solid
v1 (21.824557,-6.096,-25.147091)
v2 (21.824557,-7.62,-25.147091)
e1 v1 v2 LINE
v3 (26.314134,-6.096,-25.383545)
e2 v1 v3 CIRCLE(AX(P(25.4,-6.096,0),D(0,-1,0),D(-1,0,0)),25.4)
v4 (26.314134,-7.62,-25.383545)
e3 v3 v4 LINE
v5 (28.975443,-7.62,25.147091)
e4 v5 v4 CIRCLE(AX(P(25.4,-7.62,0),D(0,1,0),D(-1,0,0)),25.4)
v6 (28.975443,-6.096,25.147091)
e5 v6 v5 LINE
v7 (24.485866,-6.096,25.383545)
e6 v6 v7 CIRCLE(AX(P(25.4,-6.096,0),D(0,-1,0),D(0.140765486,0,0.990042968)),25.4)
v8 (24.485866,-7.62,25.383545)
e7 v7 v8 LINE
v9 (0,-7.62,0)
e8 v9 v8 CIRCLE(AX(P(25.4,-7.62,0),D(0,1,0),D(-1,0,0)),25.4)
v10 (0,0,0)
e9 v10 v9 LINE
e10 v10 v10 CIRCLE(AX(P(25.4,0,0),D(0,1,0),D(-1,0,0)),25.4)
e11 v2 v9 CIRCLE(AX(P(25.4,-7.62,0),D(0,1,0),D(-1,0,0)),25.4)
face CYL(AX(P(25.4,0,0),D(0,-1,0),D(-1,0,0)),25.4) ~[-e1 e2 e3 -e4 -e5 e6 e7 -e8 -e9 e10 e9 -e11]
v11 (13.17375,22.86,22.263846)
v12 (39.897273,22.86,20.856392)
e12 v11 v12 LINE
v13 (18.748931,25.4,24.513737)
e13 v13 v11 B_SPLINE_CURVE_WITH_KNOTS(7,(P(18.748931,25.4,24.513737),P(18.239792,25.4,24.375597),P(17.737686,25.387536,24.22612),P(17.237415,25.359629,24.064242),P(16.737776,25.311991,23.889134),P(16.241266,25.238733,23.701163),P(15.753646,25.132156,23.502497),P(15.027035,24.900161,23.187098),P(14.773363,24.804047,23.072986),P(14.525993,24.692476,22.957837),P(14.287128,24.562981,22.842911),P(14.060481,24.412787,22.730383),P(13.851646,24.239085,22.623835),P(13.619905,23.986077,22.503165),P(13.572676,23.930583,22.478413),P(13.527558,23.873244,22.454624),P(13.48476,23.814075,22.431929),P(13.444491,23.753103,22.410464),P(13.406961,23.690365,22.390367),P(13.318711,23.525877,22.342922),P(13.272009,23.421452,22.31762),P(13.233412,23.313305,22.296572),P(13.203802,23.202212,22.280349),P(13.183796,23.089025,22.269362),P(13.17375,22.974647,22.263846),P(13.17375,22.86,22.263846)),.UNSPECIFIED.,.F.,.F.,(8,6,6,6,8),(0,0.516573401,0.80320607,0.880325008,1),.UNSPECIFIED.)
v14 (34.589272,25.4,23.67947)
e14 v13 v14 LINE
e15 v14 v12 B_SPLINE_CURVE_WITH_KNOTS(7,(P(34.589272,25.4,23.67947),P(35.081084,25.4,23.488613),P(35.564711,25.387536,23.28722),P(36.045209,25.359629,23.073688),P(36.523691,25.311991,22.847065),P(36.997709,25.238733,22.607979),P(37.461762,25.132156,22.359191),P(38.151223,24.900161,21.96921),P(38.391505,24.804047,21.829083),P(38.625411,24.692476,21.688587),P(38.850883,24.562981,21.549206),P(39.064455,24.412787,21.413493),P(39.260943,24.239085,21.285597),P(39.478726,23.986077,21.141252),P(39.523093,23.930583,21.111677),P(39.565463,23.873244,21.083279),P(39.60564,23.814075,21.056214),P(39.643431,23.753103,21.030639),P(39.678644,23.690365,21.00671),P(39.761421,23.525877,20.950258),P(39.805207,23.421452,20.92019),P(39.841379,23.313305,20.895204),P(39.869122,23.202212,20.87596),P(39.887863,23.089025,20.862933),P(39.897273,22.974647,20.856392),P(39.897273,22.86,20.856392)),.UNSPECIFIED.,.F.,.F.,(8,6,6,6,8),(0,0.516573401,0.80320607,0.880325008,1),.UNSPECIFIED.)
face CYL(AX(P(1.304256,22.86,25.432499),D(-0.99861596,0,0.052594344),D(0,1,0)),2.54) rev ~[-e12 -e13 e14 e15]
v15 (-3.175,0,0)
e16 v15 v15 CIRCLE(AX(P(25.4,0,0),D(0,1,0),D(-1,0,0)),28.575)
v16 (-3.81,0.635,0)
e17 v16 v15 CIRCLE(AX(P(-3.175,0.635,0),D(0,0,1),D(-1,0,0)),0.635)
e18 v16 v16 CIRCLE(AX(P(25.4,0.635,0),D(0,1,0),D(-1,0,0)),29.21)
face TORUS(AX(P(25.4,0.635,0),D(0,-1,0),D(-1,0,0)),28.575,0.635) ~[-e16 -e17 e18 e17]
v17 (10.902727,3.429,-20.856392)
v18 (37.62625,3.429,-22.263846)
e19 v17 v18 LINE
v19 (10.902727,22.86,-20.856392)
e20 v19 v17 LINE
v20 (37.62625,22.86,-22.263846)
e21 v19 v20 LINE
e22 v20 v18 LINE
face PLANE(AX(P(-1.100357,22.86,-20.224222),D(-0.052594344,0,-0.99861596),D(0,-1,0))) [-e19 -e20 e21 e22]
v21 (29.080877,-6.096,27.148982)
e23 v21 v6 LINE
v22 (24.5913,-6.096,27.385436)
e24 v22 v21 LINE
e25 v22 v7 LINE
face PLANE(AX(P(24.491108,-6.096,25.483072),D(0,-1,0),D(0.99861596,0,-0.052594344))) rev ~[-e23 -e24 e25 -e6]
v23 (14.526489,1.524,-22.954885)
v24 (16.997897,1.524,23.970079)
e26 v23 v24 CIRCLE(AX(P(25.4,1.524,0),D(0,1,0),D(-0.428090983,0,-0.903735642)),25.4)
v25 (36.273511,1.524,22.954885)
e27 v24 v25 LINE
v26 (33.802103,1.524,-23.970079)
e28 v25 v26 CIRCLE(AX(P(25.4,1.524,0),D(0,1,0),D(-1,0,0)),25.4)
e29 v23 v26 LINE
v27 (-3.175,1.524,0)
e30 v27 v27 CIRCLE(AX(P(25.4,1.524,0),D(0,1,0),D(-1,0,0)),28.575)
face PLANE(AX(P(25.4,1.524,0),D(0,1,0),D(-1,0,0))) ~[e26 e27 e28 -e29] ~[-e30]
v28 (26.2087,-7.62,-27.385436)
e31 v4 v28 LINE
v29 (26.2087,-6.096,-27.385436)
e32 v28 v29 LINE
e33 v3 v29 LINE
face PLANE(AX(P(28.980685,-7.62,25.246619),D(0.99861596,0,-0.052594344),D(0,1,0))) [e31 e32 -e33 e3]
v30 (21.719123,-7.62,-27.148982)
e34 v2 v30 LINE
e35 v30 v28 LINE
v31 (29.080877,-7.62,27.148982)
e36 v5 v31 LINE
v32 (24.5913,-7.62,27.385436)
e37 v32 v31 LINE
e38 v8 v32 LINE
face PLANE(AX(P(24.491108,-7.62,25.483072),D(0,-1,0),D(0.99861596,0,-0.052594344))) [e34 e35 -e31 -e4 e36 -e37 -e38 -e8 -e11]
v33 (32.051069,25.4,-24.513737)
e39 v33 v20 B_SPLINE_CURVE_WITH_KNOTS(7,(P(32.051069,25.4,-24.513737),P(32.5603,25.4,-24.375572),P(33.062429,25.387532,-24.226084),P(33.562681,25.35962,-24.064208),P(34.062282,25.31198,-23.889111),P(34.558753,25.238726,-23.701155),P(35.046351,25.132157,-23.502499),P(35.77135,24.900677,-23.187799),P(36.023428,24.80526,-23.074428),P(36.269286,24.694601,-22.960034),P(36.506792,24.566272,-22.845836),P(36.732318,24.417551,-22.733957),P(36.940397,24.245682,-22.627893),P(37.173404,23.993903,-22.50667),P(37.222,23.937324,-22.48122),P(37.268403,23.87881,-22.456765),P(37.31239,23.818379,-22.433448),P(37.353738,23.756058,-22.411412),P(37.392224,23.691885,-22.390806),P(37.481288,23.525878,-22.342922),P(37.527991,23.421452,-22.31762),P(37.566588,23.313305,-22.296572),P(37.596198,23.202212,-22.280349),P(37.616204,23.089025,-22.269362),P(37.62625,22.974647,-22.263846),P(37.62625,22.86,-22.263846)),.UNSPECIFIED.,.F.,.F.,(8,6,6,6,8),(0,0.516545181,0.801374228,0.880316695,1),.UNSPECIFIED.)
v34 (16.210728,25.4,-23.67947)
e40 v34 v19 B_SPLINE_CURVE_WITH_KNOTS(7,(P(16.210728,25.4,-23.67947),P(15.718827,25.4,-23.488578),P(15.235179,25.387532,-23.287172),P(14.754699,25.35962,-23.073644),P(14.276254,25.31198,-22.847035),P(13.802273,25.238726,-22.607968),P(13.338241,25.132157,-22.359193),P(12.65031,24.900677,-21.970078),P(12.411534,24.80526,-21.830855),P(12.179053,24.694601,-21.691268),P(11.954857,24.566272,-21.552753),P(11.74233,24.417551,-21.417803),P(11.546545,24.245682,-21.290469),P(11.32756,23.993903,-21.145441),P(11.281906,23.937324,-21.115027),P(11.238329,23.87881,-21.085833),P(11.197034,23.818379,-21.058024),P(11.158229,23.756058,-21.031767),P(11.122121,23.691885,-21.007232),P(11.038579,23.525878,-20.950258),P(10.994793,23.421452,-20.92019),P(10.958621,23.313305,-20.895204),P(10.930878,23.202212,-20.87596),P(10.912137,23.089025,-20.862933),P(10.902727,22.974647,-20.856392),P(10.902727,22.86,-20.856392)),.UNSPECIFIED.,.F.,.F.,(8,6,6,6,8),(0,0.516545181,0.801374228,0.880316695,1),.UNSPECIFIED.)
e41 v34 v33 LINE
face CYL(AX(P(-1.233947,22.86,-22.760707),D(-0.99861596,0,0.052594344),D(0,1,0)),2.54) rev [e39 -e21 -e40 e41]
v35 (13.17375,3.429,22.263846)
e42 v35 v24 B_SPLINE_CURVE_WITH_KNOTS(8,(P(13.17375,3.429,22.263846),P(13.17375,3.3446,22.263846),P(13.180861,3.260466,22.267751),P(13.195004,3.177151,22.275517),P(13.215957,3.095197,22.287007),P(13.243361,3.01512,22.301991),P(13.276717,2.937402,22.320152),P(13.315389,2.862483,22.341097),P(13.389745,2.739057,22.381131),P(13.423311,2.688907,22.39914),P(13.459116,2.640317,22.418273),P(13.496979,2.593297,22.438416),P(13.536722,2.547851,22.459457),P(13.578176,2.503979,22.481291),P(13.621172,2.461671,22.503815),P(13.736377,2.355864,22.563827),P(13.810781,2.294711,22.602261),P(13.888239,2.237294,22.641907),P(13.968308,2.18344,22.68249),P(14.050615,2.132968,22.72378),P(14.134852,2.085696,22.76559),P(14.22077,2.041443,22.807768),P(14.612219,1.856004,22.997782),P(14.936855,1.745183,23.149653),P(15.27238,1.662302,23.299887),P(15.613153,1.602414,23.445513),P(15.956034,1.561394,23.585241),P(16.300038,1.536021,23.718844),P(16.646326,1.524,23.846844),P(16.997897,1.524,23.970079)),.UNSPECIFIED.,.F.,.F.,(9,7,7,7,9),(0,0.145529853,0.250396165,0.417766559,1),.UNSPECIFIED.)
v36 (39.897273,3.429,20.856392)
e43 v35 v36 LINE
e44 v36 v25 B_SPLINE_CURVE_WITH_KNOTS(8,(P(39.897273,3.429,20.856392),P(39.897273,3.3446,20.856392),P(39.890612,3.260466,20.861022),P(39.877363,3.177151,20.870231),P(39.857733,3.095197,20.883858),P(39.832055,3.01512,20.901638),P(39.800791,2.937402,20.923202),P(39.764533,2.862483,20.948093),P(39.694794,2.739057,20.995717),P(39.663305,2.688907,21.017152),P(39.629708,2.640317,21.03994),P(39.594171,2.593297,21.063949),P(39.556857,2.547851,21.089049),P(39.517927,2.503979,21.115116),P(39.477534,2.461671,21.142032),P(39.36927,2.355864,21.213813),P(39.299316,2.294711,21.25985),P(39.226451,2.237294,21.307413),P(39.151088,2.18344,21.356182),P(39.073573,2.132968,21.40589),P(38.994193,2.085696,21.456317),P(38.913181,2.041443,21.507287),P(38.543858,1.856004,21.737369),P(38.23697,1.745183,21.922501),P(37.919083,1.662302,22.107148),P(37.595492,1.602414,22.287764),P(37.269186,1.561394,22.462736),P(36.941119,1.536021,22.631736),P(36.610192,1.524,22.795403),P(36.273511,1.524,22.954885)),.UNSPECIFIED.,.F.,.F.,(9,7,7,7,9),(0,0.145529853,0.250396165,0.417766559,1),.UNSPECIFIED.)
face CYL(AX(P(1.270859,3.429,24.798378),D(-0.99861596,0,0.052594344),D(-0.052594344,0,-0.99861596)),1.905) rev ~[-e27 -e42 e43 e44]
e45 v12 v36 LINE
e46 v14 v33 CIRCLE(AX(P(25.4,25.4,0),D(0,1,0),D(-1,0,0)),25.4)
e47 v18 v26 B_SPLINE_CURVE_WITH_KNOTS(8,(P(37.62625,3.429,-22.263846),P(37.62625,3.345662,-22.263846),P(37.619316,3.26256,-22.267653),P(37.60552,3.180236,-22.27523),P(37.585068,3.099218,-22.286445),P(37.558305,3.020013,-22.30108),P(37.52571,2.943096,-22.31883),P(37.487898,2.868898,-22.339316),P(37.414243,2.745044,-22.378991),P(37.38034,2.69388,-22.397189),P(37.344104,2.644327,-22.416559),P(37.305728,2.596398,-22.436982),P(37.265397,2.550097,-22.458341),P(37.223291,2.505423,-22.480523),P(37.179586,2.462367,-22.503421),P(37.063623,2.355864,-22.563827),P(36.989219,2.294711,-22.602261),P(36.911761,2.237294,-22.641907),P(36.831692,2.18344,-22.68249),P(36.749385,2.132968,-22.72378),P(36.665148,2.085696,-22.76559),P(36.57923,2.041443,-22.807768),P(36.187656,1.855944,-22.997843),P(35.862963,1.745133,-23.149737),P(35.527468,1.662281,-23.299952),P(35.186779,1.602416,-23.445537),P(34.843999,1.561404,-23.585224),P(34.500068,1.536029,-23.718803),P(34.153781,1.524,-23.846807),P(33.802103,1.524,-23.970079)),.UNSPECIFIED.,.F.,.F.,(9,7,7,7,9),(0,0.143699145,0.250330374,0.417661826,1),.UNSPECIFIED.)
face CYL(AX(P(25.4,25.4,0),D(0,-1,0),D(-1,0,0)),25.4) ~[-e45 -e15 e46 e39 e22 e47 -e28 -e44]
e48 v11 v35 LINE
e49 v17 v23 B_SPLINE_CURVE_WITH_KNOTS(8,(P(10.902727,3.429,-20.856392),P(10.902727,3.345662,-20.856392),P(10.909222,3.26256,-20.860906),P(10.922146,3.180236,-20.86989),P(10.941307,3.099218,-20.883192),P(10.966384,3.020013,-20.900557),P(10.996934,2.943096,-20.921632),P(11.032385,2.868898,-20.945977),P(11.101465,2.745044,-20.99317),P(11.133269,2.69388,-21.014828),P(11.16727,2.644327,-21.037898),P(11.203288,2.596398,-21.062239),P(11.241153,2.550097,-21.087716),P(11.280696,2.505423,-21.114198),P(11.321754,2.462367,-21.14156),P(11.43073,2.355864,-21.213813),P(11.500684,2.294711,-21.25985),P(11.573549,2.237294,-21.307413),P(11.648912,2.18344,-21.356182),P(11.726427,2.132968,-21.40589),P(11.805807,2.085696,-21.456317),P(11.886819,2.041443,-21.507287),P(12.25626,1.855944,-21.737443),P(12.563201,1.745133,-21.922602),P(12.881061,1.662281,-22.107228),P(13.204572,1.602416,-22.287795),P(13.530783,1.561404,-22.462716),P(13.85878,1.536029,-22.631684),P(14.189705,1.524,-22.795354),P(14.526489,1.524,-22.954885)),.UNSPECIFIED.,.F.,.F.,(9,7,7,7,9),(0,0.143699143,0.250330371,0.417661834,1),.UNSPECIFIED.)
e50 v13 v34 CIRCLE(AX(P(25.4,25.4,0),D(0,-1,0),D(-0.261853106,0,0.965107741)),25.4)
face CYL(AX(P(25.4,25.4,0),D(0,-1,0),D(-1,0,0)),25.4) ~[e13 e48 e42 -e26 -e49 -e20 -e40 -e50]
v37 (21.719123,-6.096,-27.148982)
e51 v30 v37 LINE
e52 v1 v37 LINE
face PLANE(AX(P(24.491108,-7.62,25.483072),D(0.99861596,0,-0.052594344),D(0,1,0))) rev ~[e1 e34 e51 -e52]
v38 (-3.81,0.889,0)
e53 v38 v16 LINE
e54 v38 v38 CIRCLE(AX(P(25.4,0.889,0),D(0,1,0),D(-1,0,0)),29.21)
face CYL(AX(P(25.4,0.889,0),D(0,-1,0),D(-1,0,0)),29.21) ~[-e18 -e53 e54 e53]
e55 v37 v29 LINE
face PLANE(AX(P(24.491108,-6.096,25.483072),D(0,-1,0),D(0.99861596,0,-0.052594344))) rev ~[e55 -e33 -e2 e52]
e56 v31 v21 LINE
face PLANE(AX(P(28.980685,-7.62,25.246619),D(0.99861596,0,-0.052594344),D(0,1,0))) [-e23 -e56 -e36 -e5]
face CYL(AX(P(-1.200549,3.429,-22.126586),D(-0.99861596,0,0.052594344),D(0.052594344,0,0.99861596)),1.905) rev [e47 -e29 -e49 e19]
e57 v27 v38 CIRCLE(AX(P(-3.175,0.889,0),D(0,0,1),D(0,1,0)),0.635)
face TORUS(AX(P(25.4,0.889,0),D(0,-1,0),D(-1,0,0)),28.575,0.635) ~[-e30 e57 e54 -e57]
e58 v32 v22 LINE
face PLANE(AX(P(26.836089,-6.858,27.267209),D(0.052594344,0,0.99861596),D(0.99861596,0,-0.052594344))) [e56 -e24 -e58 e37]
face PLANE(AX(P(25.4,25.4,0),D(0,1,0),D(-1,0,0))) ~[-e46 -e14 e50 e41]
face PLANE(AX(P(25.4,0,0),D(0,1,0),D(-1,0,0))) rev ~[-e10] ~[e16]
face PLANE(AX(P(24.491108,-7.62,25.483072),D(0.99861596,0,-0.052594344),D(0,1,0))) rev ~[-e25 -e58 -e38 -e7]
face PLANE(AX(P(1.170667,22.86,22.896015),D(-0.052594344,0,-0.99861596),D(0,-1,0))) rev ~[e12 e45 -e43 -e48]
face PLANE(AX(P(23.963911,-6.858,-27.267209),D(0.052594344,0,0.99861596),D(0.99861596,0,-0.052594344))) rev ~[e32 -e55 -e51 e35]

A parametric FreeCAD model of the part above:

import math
import FreeCAD as App
import Part
import Sketcher

V = App.Vector
Q = App.Units.Quantity

doc = App.newDocument("Part")
body = doc.addObject("PartDesign::Body", "Body")

sketch1 = doc.addObject("Sketcher::SketchObject", "Sketch")
body.addObject(sketch1)
sketch1.AttachmentSupport = (doc.XY_Plane, [""])
sketch1.MapMode = "FlatFace"
sketch1.addGeometry(Part.LineSegment(V(0, 25.4, 0), V(0, 1.52, 0)), False)
sketch1.addGeometry(Part.LineSegment(V(0, 1.52, 0), V(-3.17, 1.52, 0)), False)
sketch1.addGeometry(Part.ArcOfCircle(Part.Circle(V(-3.17, 0.89, 0), V(0, 0, 1), 0.64), math.radians(90), math.radians(180)), False)
sketch1.addGeometry(Part.LineSegment(V(-3.81, 0.89, 0), V(-3.81, 0.64, 0)), False)
sketch1.addGeometry(Part.ArcOfCircle(Part.Circle(V(-3.17, 0.64, 0), V(0, 0, 1), 0.64), math.radians(180), math.radians(270)), False)
sketch1.addGeometry(Part.LineSegment(V(-3.17, 0, 0), V(0, 0, 0)), False)
sketch1.addGeometry(Part.LineSegment(V(0, 0, 0), V(0, -7.62, 0)), False)
sketch1.addGeometry(Part.LineSegment(V(0, -7.62, 0), V(25.4, -7.62, 0)), False)
sketch1.addGeometry(Part.LineSegment(V(25.4, -7.62, 0), V(25.4, 25.4, 0)), False)
sketch1.addGeometry(Part.LineSegment(V(25.4, 25.4, 0), V(0, 25.4, 0)), False)
sketch1.addGeometry(Part.LineSegment(V(25.4, -7.62, 0), V(25.4, 25.4, 0)), True)
sketch1.addConstraint(Sketcher.Constraint("Coincident", 0, 2, 1, 1))
sketch1.addConstraint(Sketcher.Constraint("Tangent", 1, 2, 2, 1))
sketch1.addConstraint(Sketcher.Constraint("Tangent", 2, 2, 3, 1))
sketch1.addConstraint(Sketcher.Constraint("Tangent", 3, 2, 4, 1))
sketch1.addConstraint(Sketcher.Constraint("Tangent", 4, 2, 5, 1))
sketch1.addConstraint(Sketcher.Constraint("Coincident", 5, 2, 6, 1))
sketch1.addConstraint(Sketcher.Constraint("Coincident", 6, 2, 7, 1))
sketch1.addConstraint(Sketcher.Constraint("Coincident", 7, 2, 8, 1))
sketch1.addConstraint(Sketcher.Constraint("Coincident", 8, 2, 9, 1))
sketch1.addConstraint(Sketcher.Constraint("Coincident", 9, 2, 0, 1))
sketch1.addConstraint(Sketcher.Constraint("Vertical", 0))
sketch1.addConstraint(Sketcher.Constraint("Horizontal", 1))
sketch1.addConstraint(Sketcher.Constraint("Vertical", 3))
sketch1.addConstraint(Sketcher.Constraint("Horizontal", 5))
sketch1.addConstraint(Sketcher.Constraint("Vertical", 6))
sketch1.addConstraint(Sketcher.Constraint("Horizontal", 7))
sketch1.addConstraint(Sketcher.Constraint("Vertical", 8))
sketch1.addConstraint(Sketcher.Constraint("Horizontal", 9))
sketch1.addConstraint(Sketcher.Constraint("Vertical", 10))
sketch1.addConstraint(Sketcher.Constraint("Coincident", 5, 2, -1, 1))
sketch1.addConstraint(Sketcher.Constraint("Coincident", 10, 1, 7, 2))
sketch1.addConstraint(Sketcher.Constraint("Equal", 2, 4))
sketch1.addConstraint(Sketcher.Constraint("PointOnObject", 0, 2, -2))
sketch1.addConstraint(Sketcher.Constraint("Horizontal", 9, 2, 10, 2))
sketch1.addConstraint(Sketcher.Constraint("DistanceX", 7, 1, 7, 2, Q("1 in")))
sketch1.addConstraint(Sketcher.Constraint("DistanceY", 6, 2, 6, 1, Q("0.3 in")))
sketch1.addConstraint(Sketcher.Constraint("DistanceY", 8, 1, 8, 2, Q("1.3 in")))
sketch1.addConstraint(Sketcher.Constraint("Radius", 2, Q("0.025 in")))
sketch1.addConstraint(Sketcher.Constraint("DistanceY", 0, 2, 0, 1, Q("0.94 in")))
sketch1.addConstraint(Sketcher.Constraint("DistanceX", 1, 2, 1, 1, Q("0.125 in")))
revolution = doc.addObject("PartDesign::Revolution", "Revolution")
body.addObject(revolution)
revolution.Profile = sketch1
revolution.ReferenceAxis = (sketch1, ["Axis0"])
revolution.Angle = 360

sketch2 = doc.addObject("Sketcher::SketchObject", "Sketch001")
body.addObject(sketch2)
sketch2.Placement = App.Placement(V(0.035155, -7.62, 1.335896), App.Rotation(V(0.052594344, 0, 0.99861596), V(0, 1.000000001, 0), V(-0.99861596, 0, 0.052594344), "ZXY"))
sketch2.addGeometry(Part.LineSegment(V(-26.7, 9.1, 0), V(-23.5, 9.1, 0)), False)
sketch2.addGeometry(Part.ArcOfCircle(Part.Circle(V(-23.5, 11, 0), V(0, 0, 1), 1.9), math.radians(-90), math.radians(0)), False)
sketch2.addGeometry(Part.LineSegment(V(-21.6, 11, 0), V(-21.6, 30.5, 0)), False)
sketch2.addGeometry(Part.ArcOfCircle(Part.Circle(V(-24.1, 30.5, 0), V(0, 0, 1), 2.5), math.radians(0), math.radians(90)), False)
sketch2.addGeometry(Part.LineSegment(V(-24.1, 33, 0), V(-26.7, 33, 0)), False)
sketch2.addGeometry(Part.LineSegment(V(-26.7, 33, 0), V(-26.7, 9.1, 0)), False)
sketch2.addGeometry(Part.LineSegment(V(21.6, 30.5, 0), V(21.6, 11, 0)), False)
sketch2.addGeometry(Part.ArcOfCircle(Part.Circle(V(23.5, 11, 0), V(0, 0, 1), 1.9), math.radians(-180), math.radians(-90)), False)
sketch2.addGeometry(Part.LineSegment(V(23.5, 9.1, 0), V(26.7, 9.1, 0)), False)
sketch2.addGeometry(Part.LineSegment(V(26.7, 9.1, 0), V(26.7, 33, 0)), False)
sketch2.addGeometry(Part.LineSegment(V(26.7, 33, 0), V(24.1, 33, 0)), False)
sketch2.addGeometry(Part.ArcOfCircle(Part.Circle(V(24.1, 30.5, 0), V(0, 0, 1), 2.5), math.radians(90), math.radians(180)), False)
sketch2.addConstraint(Sketcher.Constraint("Tangent", 0, 2, 1, 1))
sketch2.addConstraint(Sketcher.Constraint("Tangent", 1, 2, 2, 1))
sketch2.addConstraint(Sketcher.Constraint("Tangent", 2, 2, 3, 1))
sketch2.addConstraint(Sketcher.Constraint("Tangent", 3, 2, 4, 1))
sketch2.addConstraint(Sketcher.Constraint("Coincident", 4, 2, 5, 1))
sketch2.addConstraint(Sketcher.Constraint("Coincident", 5, 2, 0, 1))
sketch2.addConstraint(Sketcher.Constraint("Tangent", 6, 2, 7, 1))
sketch2.addConstraint(Sketcher.Constraint("Tangent", 7, 2, 8, 1))
sketch2.addConstraint(Sketcher.Constraint("Coincident", 8, 2, 9, 1))
sketch2.addConstraint(Sketcher.Constraint("Coincident", 9, 2, 10, 1))
sketch2.addConstraint(Sketcher.Constraint("Tangent", 10, 2, 11, 1))
sketch2.addConstraint(Sketcher.Constraint("Tangent", 11, 2, 6, 1))
sketch2.addConstraint(Sketcher.Constraint("Horizontal", 0))
sketch2.addConstraint(Sketcher.Constraint("Vertical", 2))
sketch2.addConstraint(Sketcher.Constraint("Horizontal", 4))
sketch2.addConstraint(Sketcher.Constraint("Vertical", 5))
sketch2.addConstraint(Sketcher.Constraint("Vertical", 6))
sketch2.addConstraint(Sketcher.Constraint("Horizontal", 8))
sketch2.addConstraint(Sketcher.Constraint("Vertical", 9))
sketch2.addConstraint(Sketcher.Constraint("Horizontal", 10))
sketch2.addConstraint(Sketcher.Constraint("Equal", 1, 7))
sketch2.addConstraint(Sketcher.Constraint("Equal", 3, 11))
sketch2.addConstraint(Sketcher.Constraint("Symmetric", 1, 3, 7, 3, -2))
sketch2.addConstraint(Sketcher.Constraint("Symmetric", 4, 2, 9, 2, -2))
sketch2.addConstraint(Sketcher.Constraint("Radius", 3, Q("0.1 in")))
sketch2.addConstraint(Sketcher.Constraint("DistanceX", 4, 2, 4, 1, Q("0.1 in")))
sketch2.addConstraint(Sketcher.Constraint("Radius", 1, Q("0.075 in")))
sketch2.addConstraint(Sketcher.Constraint("DistanceY", 5, 2, 5, 1, Q("0.94 in")))
sketch2.addConstraint(Sketcher.Constraint("DistanceY", -1, 1, 3, 3, Q("1.2 in")))
sketch2.addConstraint(Sketcher.Constraint("DistanceX", 3, 3, 11, 3, Q("1.9 in")))
pocket1 = doc.addObject("PartDesign::Pocket", "Pocket")
body.addObject(pocket1)
pocket1.Profile = sketch2
pocket1.Length = Q("2.26 in")

sketch3 = doc.addObject("Sketcher::SketchObject", "Sketch002")
body.addObject(sketch3)
sketch3.Placement = App.Placement(V(26.735896, 0, 25.364845), App.Rotation(V(0.99861596, 0, -0.052594344), V(0, 1.000000001, 0), V(0.052594344, 0, 0.99861596), "ZXY"))
sketch3.addGeometry(Part.LineSegment(V(-2.2, -6.1, 0), V(-2.2, -7.6, 0)), False)
sketch3.addGeometry(Part.LineSegment(V(-2.2, -7.6, 0), V(2.2, -7.6, 0)), False)
sketch3.addGeometry(Part.LineSegment(V(2.2, -7.6, 0), V(2.2, -6.1, 0)), False)
sketch3.addGeometry(Part.LineSegment(V(2.2, -6.1, 0), V(-2.2, -6.1, 0)), False)
sketch3.addConstraint(Sketcher.Constraint("Coincident", 0, 2, 1, 1))
sketch3.addConstraint(Sketcher.Constraint("Coincident", 1, 2, 2, 1))
sketch3.addConstraint(Sketcher.Constraint("Coincident", 2, 2, 3, 1))
sketch3.addConstraint(Sketcher.Constraint("Coincident", 3, 2, 0, 1))
sketch3.addConstraint(Sketcher.Constraint("Vertical", 0))
sketch3.addConstraint(Sketcher.Constraint("Horizontal", 1))
sketch3.addConstraint(Sketcher.Constraint("Vertical", 2))
sketch3.addConstraint(Sketcher.Constraint("Horizontal", 3))
sketch3.addConstraint(Sketcher.Constraint("DistanceY", 0, 2, 0, 1, Q("0.06 in")))
sketch3.addConstraint(Sketcher.Constraint("DistanceY", 0, 2, -1, 1, Q("0.3 in")))
sketch3.addConstraint(Sketcher.Constraint("DistanceX", 1, 1, 1, 2, Q("0.177 in")))
sketch3.addConstraint(Sketcher.Constraint("DistanceX", 0, 2, -1, 1, Q("0.0885 in")))
pad1 = doc.addObject("PartDesign::Pad", "Pad")
body.addObject(pad1)
pad1.Profile = sketch3
pad1.Type = "TwoLengths"
pad1.Length = Q("0.075 in")
pad1.Length2 = Q("2.075 in")

doc.recompute()
